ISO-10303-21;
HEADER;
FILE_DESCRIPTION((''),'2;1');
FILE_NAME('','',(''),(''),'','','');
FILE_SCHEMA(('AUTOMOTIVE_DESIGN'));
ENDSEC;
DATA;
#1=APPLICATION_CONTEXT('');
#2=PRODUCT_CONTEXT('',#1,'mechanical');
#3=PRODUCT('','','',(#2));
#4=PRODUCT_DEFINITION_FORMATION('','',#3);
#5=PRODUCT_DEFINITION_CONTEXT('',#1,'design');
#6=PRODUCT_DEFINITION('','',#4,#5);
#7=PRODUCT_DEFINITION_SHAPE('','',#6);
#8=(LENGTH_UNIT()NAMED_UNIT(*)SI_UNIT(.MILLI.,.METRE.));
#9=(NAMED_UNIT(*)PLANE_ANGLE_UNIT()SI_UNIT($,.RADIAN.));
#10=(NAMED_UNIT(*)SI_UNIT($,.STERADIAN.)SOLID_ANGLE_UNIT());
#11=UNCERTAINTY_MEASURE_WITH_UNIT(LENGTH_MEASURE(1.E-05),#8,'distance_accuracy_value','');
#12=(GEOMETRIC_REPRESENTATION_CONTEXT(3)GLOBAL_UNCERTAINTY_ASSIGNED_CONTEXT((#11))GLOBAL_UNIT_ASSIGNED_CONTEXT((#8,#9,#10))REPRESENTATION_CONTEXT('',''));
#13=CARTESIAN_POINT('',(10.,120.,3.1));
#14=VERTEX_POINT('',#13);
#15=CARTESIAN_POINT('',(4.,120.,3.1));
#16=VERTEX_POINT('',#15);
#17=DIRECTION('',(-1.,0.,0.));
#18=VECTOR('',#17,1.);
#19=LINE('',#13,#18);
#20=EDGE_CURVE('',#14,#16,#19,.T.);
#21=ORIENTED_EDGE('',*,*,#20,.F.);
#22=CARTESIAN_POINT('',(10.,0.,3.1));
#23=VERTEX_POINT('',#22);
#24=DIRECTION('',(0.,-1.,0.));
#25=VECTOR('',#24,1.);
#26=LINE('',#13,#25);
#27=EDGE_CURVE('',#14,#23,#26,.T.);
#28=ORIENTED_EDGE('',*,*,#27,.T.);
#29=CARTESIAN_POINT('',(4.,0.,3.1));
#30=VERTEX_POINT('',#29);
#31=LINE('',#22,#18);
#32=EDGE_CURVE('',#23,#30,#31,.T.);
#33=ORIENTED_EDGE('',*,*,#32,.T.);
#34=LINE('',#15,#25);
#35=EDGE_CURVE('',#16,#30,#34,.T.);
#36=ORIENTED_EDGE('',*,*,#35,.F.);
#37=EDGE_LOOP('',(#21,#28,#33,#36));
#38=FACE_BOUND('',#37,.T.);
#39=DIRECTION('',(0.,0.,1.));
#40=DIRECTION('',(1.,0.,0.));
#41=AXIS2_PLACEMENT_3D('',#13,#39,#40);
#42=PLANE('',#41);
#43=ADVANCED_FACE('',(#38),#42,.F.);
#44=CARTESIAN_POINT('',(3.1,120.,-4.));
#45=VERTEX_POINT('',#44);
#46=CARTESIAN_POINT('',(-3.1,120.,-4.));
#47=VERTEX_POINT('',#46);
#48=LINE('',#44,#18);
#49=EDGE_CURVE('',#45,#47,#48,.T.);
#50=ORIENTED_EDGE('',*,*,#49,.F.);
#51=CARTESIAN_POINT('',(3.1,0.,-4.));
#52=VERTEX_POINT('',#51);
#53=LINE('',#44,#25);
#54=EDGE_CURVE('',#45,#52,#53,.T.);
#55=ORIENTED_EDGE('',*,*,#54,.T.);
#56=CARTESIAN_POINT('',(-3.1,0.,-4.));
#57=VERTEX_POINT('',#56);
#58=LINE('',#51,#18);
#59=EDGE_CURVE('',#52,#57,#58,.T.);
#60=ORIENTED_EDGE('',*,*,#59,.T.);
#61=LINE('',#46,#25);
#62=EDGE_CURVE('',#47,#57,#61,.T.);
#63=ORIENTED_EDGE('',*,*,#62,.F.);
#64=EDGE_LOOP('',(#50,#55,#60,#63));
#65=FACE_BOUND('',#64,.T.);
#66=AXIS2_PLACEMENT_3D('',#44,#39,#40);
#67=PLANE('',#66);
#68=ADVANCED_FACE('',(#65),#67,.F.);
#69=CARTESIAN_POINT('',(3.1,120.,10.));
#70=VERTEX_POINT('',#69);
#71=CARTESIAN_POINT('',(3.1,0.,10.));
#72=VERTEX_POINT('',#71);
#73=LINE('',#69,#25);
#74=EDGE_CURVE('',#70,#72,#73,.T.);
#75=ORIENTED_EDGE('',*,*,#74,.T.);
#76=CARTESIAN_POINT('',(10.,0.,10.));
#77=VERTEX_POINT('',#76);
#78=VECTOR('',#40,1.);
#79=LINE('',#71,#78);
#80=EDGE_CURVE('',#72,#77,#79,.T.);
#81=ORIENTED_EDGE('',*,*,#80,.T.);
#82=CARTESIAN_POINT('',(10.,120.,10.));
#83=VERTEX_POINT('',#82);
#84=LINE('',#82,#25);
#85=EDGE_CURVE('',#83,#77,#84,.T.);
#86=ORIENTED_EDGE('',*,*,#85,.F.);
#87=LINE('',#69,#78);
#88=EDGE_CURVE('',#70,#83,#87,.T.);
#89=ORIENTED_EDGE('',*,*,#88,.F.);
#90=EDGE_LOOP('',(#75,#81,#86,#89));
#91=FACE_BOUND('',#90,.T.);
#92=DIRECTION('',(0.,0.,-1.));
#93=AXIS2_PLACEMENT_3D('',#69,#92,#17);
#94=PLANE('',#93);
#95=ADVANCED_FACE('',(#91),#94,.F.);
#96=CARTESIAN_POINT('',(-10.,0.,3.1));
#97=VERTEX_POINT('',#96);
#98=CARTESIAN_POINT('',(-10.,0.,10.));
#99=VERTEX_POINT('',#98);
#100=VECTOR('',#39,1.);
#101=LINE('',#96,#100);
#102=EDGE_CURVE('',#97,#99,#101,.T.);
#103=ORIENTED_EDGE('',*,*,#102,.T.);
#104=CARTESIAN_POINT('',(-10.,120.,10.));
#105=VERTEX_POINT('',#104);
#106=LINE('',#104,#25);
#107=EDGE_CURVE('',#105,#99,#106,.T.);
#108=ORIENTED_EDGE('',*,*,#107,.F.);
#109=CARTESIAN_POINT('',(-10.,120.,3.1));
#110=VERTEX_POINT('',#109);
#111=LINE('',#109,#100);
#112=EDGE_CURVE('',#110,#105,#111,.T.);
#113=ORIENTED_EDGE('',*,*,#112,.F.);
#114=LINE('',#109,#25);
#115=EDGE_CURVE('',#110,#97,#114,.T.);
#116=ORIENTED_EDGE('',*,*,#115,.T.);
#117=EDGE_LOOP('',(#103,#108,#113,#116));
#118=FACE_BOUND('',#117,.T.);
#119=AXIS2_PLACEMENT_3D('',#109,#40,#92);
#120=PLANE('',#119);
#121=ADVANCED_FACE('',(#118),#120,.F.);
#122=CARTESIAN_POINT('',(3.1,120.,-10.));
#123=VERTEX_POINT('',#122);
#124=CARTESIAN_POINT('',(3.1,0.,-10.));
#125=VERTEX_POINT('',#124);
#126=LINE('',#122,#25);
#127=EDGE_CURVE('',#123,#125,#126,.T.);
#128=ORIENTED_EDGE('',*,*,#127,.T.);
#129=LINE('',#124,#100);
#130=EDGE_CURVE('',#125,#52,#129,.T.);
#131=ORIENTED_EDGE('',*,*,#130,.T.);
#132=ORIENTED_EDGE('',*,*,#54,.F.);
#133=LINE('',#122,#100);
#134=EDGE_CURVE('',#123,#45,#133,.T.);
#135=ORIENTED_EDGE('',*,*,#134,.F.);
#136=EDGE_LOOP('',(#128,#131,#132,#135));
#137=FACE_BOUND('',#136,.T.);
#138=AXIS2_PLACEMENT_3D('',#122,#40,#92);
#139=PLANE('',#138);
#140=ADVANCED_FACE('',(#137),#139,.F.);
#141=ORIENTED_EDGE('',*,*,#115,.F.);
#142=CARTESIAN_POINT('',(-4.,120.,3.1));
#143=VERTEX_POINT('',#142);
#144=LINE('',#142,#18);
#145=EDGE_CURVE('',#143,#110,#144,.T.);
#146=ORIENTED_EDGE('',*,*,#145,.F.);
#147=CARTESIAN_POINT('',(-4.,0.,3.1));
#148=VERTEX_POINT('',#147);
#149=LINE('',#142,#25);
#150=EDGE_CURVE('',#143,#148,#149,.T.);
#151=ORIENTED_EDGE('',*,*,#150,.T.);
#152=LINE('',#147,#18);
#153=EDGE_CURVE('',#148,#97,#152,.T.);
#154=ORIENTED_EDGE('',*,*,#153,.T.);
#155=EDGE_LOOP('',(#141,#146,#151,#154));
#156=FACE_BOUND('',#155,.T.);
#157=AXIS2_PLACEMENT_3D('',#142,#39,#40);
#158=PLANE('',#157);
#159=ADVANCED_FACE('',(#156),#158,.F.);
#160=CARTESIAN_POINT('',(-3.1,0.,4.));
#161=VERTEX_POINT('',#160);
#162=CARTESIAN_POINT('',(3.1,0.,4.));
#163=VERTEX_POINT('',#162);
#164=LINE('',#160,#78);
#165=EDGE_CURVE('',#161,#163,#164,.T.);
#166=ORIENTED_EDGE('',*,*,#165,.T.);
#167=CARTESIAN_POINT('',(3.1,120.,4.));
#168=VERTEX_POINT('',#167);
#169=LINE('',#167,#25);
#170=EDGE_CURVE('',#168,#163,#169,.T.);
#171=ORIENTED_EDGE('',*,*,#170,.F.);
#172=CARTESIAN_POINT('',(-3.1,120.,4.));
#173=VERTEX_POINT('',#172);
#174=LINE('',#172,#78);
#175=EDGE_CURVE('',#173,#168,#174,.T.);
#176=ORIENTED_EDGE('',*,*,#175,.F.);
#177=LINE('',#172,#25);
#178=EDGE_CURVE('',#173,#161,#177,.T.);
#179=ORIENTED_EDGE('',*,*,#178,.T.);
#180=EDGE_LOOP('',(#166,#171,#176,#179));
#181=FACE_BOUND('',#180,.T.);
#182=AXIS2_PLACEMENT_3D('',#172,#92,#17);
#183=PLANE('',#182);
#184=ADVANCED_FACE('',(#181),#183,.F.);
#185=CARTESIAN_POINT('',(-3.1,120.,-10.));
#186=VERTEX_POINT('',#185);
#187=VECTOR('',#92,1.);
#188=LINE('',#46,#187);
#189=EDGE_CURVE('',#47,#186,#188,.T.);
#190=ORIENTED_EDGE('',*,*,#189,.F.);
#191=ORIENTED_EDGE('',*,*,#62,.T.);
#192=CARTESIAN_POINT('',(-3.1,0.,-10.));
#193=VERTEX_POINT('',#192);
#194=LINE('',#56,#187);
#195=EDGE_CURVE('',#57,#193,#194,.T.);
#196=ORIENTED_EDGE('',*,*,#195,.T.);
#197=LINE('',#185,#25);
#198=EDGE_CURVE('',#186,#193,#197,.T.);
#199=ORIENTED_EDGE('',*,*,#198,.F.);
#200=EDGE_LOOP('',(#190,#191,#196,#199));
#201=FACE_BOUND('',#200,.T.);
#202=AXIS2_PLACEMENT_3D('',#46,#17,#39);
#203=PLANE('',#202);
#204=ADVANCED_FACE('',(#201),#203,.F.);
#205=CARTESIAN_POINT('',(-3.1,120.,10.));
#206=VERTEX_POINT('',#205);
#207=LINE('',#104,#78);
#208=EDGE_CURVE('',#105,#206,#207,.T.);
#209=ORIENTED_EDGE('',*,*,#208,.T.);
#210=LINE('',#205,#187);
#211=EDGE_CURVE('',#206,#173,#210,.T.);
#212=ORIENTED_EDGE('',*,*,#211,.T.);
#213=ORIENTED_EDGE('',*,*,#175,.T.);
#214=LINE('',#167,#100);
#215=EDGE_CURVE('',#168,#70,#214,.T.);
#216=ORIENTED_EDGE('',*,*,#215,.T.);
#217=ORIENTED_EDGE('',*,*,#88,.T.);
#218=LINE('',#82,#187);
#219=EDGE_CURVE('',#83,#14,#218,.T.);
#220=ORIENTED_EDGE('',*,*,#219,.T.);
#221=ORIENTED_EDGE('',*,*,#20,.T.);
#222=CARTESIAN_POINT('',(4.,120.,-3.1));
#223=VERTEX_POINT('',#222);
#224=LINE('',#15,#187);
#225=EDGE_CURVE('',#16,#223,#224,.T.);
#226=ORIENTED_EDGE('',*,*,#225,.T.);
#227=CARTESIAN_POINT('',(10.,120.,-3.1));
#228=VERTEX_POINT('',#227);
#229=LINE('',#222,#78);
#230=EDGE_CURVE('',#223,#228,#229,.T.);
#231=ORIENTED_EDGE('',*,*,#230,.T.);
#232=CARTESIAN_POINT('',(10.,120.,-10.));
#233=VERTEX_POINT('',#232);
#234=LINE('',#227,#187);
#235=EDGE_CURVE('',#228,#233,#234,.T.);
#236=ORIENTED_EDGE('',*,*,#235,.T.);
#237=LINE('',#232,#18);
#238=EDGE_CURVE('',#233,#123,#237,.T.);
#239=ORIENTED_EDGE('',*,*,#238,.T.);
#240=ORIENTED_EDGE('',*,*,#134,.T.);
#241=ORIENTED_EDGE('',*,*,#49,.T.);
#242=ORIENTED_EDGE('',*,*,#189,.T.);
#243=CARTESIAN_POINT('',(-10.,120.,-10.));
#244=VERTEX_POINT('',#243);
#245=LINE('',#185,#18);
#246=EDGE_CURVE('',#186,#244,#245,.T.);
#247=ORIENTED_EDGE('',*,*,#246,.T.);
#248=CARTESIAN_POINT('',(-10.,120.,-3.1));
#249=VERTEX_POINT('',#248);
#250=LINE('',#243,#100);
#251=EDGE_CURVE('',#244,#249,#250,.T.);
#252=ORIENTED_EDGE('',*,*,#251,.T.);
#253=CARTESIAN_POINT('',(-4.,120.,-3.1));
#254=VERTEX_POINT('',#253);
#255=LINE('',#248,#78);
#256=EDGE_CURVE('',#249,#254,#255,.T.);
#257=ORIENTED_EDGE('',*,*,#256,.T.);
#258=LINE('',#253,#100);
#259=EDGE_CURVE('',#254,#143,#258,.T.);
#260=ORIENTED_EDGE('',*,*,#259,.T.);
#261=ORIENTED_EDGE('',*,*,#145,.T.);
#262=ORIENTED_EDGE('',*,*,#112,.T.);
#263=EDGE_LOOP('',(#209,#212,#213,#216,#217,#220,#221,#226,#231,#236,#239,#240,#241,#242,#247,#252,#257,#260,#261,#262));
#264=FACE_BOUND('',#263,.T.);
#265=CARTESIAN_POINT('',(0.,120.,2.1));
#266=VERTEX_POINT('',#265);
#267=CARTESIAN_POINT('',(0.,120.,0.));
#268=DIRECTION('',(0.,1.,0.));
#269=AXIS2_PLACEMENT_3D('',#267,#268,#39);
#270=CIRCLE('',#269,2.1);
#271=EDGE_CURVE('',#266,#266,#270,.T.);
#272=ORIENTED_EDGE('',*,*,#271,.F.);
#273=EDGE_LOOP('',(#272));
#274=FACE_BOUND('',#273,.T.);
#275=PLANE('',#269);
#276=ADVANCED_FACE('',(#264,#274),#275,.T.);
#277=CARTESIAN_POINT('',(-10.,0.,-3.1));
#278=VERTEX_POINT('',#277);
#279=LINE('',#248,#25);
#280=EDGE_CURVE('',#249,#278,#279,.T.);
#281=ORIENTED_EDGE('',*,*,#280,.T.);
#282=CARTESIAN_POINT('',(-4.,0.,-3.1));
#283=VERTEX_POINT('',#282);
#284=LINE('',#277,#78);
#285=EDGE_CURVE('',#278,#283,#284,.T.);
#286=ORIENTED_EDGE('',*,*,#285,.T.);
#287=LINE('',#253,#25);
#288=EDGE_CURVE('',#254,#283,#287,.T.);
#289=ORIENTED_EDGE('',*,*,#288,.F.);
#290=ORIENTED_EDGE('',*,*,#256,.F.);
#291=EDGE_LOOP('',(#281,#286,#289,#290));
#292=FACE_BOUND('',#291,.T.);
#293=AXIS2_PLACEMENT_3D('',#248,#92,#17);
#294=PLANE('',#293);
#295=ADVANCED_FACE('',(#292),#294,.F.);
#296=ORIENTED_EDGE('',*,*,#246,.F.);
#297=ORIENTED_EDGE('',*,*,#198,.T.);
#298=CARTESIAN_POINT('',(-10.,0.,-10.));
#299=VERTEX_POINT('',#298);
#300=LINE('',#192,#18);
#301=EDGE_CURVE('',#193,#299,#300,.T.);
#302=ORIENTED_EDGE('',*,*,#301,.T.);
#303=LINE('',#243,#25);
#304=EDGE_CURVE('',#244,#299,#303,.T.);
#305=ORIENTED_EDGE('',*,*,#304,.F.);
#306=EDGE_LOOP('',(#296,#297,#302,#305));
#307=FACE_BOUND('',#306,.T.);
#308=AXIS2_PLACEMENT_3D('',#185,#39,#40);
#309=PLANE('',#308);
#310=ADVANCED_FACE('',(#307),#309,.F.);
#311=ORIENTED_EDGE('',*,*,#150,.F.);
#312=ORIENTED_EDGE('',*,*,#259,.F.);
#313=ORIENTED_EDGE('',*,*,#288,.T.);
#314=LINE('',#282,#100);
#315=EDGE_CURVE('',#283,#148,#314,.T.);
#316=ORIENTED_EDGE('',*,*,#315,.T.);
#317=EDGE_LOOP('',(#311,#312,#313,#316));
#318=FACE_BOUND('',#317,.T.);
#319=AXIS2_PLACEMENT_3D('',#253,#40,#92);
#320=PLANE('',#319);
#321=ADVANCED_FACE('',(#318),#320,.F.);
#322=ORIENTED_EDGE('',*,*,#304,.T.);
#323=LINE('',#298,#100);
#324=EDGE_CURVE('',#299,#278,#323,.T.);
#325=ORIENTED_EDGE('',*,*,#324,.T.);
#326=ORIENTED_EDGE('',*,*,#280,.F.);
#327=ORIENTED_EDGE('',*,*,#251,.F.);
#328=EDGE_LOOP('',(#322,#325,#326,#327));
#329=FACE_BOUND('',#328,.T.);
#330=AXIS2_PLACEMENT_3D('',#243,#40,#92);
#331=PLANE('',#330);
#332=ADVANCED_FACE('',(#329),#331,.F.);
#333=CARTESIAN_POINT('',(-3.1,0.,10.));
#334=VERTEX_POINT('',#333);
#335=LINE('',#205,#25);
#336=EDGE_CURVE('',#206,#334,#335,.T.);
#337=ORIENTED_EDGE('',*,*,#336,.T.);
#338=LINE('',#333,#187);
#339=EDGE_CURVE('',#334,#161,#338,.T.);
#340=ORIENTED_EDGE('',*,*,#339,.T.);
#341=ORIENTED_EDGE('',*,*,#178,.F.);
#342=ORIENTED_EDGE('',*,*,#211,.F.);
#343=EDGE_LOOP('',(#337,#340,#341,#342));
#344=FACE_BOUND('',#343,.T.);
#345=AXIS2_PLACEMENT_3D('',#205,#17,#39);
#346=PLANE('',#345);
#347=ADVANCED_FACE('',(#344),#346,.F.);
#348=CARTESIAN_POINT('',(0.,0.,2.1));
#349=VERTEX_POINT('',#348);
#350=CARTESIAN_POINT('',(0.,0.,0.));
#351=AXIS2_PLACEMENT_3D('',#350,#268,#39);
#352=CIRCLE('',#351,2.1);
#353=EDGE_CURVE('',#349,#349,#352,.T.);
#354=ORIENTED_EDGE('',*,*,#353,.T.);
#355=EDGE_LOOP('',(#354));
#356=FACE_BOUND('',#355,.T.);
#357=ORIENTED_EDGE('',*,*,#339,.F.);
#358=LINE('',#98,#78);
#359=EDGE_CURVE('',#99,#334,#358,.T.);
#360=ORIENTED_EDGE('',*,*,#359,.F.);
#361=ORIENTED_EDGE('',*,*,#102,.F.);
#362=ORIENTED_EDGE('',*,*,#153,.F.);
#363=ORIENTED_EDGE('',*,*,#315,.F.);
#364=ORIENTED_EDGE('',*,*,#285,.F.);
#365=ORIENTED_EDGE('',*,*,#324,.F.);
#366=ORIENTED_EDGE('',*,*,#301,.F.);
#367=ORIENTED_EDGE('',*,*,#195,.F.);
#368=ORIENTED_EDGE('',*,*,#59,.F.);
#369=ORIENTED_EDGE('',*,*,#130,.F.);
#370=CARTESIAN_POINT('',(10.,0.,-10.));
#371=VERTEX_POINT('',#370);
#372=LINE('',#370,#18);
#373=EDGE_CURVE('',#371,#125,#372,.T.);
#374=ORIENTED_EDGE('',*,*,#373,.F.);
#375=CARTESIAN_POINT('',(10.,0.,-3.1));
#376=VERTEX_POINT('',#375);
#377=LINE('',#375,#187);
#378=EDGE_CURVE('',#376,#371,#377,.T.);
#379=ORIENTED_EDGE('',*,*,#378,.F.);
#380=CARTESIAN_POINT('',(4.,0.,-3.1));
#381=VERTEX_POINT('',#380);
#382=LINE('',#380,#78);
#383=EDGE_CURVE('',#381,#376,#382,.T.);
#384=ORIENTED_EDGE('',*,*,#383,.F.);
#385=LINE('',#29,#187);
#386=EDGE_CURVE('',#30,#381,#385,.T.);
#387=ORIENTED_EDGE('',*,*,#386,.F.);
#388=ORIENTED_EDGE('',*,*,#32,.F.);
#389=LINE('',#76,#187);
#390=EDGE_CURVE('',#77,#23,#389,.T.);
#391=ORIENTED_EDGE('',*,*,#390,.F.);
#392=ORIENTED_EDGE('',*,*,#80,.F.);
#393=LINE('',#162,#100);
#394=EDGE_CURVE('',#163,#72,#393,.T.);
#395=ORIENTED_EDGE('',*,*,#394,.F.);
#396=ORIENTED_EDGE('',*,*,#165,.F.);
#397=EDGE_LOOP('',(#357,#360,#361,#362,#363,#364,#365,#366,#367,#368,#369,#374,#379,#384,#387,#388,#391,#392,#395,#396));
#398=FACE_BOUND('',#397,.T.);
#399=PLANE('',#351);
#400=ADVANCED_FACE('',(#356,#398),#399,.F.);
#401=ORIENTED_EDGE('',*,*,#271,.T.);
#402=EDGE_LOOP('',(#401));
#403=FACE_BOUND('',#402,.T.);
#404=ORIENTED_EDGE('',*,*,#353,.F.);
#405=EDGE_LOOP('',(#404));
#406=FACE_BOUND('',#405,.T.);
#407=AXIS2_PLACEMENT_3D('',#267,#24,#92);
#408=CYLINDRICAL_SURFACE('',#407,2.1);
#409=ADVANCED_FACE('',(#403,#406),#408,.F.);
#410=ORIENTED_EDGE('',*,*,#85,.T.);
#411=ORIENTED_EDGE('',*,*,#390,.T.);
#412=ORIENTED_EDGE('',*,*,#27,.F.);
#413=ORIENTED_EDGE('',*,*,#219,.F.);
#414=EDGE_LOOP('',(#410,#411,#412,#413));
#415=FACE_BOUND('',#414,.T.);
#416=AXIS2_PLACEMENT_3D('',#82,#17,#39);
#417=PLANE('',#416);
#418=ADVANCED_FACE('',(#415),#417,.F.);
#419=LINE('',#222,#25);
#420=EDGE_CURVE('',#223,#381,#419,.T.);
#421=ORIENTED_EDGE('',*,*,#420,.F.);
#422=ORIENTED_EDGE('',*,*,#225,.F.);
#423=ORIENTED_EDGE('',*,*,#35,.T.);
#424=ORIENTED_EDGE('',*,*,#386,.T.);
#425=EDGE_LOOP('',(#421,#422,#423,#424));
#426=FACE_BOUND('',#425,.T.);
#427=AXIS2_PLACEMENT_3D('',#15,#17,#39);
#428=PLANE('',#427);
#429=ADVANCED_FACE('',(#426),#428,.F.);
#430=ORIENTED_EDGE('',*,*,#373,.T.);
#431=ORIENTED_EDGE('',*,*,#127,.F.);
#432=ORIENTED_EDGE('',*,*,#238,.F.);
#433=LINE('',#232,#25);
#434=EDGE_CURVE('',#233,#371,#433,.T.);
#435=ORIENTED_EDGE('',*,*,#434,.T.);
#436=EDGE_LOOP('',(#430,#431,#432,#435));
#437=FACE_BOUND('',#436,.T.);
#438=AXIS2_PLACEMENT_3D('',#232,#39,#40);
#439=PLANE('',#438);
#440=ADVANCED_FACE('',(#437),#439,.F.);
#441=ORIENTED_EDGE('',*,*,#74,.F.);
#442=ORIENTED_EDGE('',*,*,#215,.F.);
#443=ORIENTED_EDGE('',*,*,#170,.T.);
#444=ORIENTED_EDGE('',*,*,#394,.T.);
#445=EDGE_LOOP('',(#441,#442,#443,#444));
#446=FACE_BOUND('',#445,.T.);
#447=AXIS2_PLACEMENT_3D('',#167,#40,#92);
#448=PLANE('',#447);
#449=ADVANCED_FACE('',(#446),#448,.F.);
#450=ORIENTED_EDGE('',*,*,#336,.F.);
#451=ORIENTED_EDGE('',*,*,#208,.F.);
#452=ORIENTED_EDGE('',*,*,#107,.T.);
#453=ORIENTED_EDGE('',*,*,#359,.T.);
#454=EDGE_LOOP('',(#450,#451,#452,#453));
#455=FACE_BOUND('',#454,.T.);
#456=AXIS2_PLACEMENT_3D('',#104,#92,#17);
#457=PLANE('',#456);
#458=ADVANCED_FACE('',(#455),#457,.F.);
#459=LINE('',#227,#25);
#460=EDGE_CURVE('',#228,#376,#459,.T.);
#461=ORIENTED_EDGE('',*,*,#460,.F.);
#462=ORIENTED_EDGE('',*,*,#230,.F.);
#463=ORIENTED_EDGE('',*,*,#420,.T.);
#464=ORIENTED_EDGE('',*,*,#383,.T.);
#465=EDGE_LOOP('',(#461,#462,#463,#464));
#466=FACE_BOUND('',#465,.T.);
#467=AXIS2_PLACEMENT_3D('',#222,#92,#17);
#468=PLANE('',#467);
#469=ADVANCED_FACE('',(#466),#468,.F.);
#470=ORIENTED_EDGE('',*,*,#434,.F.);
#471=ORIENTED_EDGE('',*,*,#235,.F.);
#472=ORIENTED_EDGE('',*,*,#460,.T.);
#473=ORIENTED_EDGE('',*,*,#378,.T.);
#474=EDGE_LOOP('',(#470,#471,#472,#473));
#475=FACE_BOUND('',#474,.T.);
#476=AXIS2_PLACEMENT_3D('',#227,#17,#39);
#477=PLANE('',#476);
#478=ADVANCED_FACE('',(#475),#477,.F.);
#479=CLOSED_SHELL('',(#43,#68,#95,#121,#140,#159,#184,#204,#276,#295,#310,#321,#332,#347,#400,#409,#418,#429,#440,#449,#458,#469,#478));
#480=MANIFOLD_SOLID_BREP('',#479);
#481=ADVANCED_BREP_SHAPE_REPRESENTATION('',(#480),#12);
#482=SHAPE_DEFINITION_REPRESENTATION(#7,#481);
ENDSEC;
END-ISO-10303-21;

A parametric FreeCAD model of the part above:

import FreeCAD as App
import Part
import Sketcher
from FreeCAD import Vector
Q = App.Units.Quantity


def add_polygon(sketch, points):
    """Adds a closed chain of lines whose ends are joined by coincident constraints."""
    first, n = sketch.GeometryCount, len(points)
    for a, b in zip(points, points[1:] + points[:1]):
        sketch.addGeometry(Part.LineSegment(App.Vector(*a, 0), App.Vector(*b, 0)), False)
    for i in range(n):
        sketch.addConstraint(Sketcher.Constraint("Coincident", first + i, 2, first + (i + 1) % n, 1))

doc = App.newDocument("Part")
body = doc.addObject("PartDesign::Body", "Body")

# Sketch on XZ plane
sketch1 = body.newObject("Sketcher::SketchObject", "Sketch")
sketch1.AttachmentSupport = (doc.getObject("XZ_Plane"), [""])
sketch1.MapMode = "FlatFace"
add_polygon(sketch1, [(10, 10), (10, 3.1), (4, 3.1), (4, -3.1), (10, -3.1), (10, -10), (3.1, -10), (3.1, -4), (-3.1, -4), (-3.1, -10), (-10, -10), (-10, -3.1), (-4, -3.1), (-4, 3.1), (-10, 3.1), (-10, 10), (-3.1, 10), (-3.1, 4), (3.1, 4), (3.1, 10)])  # lines 0-19
sketch1.addGeometry(Part.Circle(Vector(0, 0, 0), Vector(0, 0, 1), 2.1), False)  # 20
sketch1.addConstraint(Sketcher.Constraint("Vertical", 0))
sketch1.addConstraint(Sketcher.Constraint("Horizontal", 1))
sketch1.addConstraint(Sketcher.Constraint("Vertical", 2))
sketch1.addConstraint(Sketcher.Constraint("Horizontal", 3))
sketch1.addConstraint(Sketcher.Constraint("Vertical", 4))
sketch1.addConstraint(Sketcher.Constraint("Horizontal", 5))
sketch1.addConstraint(Sketcher.Constraint("Vertical", 6))
sketch1.addConstraint(Sketcher.Constraint("Horizontal", 7))
sketch1.addConstraint(Sketcher.Constraint("Vertical", 8))
sketch1.addConstraint(Sketcher.Constraint("Horizontal", 9))
sketch1.addConstraint(Sketcher.Constraint("Vertical", 10))
sketch1.addConstraint(Sketcher.Constraint("Horizontal", 11))
sketch1.addConstraint(Sketcher.Constraint("Vertical", 12))
sketch1.addConstraint(Sketcher.Constraint("Horizontal", 13))
sketch1.addConstraint(Sketcher.Constraint("Vertical", 14))
sketch1.addConstraint(Sketcher.Constraint("Horizontal", 15))
sketch1.addConstraint(Sketcher.Constraint("Vertical", 16))
sketch1.addConstraint(Sketcher.Constraint("Horizontal", 17))
sketch1.addConstraint(Sketcher.Constraint("Vertical", 18))
sketch1.addConstraint(Sketcher.Constraint("Horizontal", 19))
sketch1.addConstraint(Sketcher.Constraint("Coincident", 20, 3, -1, 1))
sketch1.addConstraint(Sketcher.Constraint("Symmetric", 0, 2, 10, 2, -1, 1))
sketch1.addConstraint(Sketcher.Constraint("Symmetric", 2, 2, 12, 2, -1, 1))
sketch1.addConstraint(Sketcher.Constraint("Symmetric", 4, 2, 14, 2, -1, 1))
sketch1.addConstraint(Sketcher.Constraint("Symmetric", 6, 2, 16, 2, -1, 1))
sketch1.addConstraint(Sketcher.Constraint("Symmetric", 8, 2, 18, 2, -1, 1))
sketch1.addConstraint(Sketcher.Constraint("Symmetric", 5, 2, 8, 2, -2))
sketch1.addConstraint(Sketcher.Constraint("Symmetric", 3, 2, 10, 2, -2))
sketch1.addConstraint(Sketcher.Constraint("Equal", 19, 0))
sketch1.addConstraint(Sketcher.Constraint("Equal", 17, 2))
sketch1.addConstraint(Sketcher.Constraint("Equal", 13, 6))
sketch1.addConstraint(Sketcher.Constraint("Diameter", 20, Q("4.2 mm")))
sketch1.addConstraint(Sketcher.Constraint("DistanceX", 1, 2, 1, 1, Q("6 mm")))
sketch1.addConstraint(Sketcher.Constraint("DistanceX", 5, 2, 5, 1, Q("6.9 mm")))
sketch1.addConstraint(Sketcher.Constraint("DistanceX", 7, 2, 7, 1, Q("6.2 mm")))
pad1 = body.newObject("PartDesign::Pad", "Pad")
pad1.Profile = sketch1
pad1.Length = 120
pad1.Reversed = True

doc.recompute()
